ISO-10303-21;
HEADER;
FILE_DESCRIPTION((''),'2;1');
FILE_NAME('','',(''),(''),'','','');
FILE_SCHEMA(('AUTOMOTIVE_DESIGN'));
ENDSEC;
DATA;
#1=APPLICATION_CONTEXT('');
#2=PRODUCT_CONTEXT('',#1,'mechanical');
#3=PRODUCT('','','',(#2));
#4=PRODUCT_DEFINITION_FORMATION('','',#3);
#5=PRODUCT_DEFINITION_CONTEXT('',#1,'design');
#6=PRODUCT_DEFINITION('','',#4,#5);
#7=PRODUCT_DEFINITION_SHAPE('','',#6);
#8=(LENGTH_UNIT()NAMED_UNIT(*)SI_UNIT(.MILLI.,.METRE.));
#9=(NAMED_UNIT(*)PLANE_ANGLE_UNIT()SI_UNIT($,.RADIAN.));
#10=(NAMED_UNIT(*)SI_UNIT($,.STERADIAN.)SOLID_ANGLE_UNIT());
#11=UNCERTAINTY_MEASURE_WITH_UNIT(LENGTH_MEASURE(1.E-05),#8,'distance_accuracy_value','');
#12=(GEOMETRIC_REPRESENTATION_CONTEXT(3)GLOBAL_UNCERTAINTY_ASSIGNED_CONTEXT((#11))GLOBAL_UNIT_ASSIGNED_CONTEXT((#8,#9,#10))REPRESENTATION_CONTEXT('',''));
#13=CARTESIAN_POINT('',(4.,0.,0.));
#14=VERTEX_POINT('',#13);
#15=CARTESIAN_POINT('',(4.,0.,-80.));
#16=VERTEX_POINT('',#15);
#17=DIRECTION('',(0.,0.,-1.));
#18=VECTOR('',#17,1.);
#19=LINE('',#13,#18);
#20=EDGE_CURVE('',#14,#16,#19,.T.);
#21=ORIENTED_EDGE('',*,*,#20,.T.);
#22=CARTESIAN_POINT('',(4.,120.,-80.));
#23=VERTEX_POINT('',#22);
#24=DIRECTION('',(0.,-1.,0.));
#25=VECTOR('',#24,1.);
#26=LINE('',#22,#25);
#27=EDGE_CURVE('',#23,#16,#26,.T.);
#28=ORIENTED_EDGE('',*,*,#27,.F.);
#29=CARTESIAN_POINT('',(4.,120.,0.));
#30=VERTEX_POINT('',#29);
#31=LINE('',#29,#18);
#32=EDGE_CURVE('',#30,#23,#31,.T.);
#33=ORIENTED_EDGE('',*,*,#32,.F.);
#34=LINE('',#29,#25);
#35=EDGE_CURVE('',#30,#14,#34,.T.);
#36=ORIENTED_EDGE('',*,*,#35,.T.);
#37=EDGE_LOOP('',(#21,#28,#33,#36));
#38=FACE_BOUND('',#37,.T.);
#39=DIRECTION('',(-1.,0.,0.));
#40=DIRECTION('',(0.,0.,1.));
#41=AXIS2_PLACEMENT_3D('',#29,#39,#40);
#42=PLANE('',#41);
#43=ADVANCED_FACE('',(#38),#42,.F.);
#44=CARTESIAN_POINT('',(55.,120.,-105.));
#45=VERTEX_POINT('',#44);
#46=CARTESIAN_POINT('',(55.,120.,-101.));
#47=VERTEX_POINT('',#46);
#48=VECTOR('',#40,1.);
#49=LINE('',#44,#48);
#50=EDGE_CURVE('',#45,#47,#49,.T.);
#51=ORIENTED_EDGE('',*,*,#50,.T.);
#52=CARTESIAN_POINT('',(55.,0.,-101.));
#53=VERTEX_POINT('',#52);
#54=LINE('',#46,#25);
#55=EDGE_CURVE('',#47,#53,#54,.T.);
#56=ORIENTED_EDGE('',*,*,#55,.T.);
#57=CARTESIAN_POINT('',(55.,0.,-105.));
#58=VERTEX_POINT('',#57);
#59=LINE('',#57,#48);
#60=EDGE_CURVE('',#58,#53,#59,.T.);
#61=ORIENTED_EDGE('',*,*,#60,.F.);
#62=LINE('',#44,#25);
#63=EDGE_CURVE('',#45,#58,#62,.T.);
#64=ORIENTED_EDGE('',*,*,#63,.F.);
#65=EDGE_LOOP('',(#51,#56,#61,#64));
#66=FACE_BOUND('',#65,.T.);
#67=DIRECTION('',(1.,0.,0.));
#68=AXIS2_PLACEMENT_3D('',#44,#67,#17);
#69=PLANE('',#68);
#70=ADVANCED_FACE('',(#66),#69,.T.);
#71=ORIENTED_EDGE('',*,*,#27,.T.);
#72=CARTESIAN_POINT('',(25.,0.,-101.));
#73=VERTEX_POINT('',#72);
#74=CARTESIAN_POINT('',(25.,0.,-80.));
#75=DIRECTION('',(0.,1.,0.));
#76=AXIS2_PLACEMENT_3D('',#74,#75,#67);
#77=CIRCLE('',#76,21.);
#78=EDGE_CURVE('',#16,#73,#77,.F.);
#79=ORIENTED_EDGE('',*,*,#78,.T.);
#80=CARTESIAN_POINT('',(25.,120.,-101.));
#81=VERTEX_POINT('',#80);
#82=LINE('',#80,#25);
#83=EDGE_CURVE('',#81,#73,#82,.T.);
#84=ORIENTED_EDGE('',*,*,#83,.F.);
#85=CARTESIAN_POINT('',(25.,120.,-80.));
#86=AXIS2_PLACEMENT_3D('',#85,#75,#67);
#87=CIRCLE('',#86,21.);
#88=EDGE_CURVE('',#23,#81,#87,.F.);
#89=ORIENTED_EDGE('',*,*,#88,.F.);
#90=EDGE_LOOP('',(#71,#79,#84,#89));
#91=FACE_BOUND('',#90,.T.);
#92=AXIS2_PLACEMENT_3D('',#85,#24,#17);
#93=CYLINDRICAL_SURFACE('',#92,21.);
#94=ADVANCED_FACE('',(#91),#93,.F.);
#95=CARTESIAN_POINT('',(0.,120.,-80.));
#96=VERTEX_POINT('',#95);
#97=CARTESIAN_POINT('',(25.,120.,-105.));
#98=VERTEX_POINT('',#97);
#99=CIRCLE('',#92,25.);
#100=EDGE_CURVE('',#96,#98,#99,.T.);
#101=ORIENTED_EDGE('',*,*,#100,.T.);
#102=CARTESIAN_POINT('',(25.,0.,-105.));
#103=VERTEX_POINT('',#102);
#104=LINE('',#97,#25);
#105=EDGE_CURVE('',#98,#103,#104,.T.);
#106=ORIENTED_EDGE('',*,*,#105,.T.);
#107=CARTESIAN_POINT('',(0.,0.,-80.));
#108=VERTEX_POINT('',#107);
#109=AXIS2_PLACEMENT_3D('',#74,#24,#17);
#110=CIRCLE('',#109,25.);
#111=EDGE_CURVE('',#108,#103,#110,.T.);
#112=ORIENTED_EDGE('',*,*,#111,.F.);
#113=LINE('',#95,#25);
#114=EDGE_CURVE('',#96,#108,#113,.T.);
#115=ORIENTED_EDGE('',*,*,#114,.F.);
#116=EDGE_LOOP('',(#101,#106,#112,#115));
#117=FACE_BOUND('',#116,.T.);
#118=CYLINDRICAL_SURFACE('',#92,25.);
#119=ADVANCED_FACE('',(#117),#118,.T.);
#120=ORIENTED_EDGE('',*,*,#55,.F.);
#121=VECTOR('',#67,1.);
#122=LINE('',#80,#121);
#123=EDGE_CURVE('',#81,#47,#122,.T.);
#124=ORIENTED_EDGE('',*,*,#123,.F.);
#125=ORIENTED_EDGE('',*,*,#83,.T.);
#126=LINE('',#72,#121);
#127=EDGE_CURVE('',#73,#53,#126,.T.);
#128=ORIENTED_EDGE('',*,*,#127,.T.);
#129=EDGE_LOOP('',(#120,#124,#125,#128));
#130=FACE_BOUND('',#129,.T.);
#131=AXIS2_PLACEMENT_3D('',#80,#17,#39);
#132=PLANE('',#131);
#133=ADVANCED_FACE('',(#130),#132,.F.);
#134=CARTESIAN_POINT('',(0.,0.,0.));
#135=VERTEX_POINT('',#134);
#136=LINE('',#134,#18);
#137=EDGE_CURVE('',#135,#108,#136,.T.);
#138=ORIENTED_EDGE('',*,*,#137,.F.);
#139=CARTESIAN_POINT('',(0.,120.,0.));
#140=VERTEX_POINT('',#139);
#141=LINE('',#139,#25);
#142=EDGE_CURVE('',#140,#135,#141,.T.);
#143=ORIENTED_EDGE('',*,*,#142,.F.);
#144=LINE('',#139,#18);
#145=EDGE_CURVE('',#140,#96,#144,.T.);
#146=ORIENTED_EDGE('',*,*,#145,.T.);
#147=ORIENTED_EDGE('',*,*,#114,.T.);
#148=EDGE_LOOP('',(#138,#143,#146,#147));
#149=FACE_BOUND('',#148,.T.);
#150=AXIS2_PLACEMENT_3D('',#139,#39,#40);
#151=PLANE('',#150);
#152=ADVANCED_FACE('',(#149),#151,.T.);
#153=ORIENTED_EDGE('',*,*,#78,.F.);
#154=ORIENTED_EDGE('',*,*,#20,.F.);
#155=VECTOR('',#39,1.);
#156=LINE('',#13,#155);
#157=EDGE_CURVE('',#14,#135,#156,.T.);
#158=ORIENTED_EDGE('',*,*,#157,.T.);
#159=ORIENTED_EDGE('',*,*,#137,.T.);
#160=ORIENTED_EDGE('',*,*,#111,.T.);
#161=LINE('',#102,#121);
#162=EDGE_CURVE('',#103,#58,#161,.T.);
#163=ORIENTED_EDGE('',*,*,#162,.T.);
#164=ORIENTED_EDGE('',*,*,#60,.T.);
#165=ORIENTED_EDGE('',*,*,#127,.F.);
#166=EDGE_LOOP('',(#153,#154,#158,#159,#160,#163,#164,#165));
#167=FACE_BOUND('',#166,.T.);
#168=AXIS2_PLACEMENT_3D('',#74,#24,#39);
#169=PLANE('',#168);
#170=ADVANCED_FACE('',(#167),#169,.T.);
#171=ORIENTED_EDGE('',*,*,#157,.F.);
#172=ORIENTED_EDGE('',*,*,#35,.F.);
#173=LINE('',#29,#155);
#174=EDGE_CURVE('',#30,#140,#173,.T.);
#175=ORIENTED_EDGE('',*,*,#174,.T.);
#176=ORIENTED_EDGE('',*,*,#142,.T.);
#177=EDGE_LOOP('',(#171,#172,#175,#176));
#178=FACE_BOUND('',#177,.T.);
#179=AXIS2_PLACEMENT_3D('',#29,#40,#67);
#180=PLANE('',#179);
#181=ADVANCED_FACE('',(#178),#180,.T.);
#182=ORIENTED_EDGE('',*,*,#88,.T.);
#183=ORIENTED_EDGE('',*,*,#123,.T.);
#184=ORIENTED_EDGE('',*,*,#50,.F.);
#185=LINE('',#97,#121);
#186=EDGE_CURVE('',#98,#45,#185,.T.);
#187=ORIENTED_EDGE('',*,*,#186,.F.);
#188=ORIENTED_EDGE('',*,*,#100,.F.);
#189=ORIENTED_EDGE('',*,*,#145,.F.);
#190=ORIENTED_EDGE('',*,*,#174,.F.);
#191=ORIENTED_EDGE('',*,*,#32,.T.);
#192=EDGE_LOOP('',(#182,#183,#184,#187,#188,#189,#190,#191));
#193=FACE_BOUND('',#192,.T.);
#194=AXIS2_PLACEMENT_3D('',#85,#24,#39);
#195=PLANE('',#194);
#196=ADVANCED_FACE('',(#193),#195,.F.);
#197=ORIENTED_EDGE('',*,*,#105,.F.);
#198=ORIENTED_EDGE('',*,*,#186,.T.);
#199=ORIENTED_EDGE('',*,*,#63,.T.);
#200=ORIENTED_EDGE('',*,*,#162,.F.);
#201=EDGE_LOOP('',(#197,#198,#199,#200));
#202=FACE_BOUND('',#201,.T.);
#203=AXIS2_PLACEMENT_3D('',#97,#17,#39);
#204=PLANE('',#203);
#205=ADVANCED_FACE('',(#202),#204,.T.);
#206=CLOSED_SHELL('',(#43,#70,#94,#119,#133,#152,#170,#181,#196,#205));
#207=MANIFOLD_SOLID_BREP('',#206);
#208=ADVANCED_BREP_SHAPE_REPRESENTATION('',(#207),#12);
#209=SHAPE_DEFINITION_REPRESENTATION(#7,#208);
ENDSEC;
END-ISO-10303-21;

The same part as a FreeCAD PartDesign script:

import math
import FreeCAD as App
import Part
import Sketcher

doc = App.newDocument("Part")
params = doc.addObject("Spreadsheet::Sheet", "Params")
for row, (alias, value) in enumerate([
    ("sketch1_radius", "21 mm"),
    ("sketch1_radius2", "25 mm"),
    ("sketch1_width", "30 mm"),
    ("sketch1_height", "80 mm"),
    ("pad1_length", "120 mm"),
], start=1):
    params.set(f"A{row}", alias)
    params.set(f"B{row}", "=" + value)
    params.setAlias(f"B{row}", alias)

body = doc.addObject("PartDesign::Body", "Body")

sketch1 = body.newObject("Sketcher::SketchObject", "Sketch")
sketch1.AttachmentSupport = (doc.getObject("XZ_Plane"), [""])
sketch1.MapMode = "FlatFace"
sketch1.addGeometry(Part.LineSegment(App.Vector(0, -80, 0), App.Vector(0, 0, 0)), False)
sketch1.addGeometry(Part.LineSegment(App.Vector(0, 0, 0), App.Vector(4, 0, 0)), False)
sketch1.addGeometry(Part.LineSegment(App.Vector(4, 0, 0), App.Vector(4, -80, 0)), False)
sketch1.addGeometry(Part.ArcOfCircle(Part.Circle(App.Vector(25, -80, 0), App.Vector(0, 0, 1), 21), math.radians(180), math.radians(270)), False)
sketch1.addGeometry(Part.LineSegment(App.Vector(25, -101, 0), App.Vector(55, -101, 0)), False)
sketch1.addGeometry(Part.LineSegment(App.Vector(55, -101, 0), App.Vector(55, -105, 0)), False)
sketch1.addGeometry(Part.LineSegment(App.Vector(55, -105, 0), App.Vector(25, -105, 0)), False)
sketch1.addGeometry(Part.ArcOfCircle(Part.Circle(App.Vector(25, -80, 0), App.Vector(0, 0, 1), 25), math.radians(180), math.radians(270)), False)
sketch1.addConstraint(Sketcher.Constraint("Coincident", 0, 2, 1, 1))
sketch1.addConstraint(Sketcher.Constraint("Coincident", 1, 2, 2, 1))
sketch1.addConstraint(Sketcher.Constraint("Tangent", 2, 2, 3, 1))
sketch1.addConstraint(Sketcher.Constraint("Tangent", 3, 2, 4, 1))
sketch1.addConstraint(Sketcher.Constraint("Coincident", 4, 2, 5, 1))
sketch1.addConstraint(Sketcher.Constraint("Coincident", 5, 2, 6, 1))
sketch1.addConstraint(Sketcher.Constraint("Tangent", 6, 2, 7, 2))
sketch1.addConstraint(Sketcher.Constraint("Tangent", 7, 1, 0, 1))
sketch1.addConstraint(Sketcher.Constraint("Vertical", 0))
sketch1.addConstraint(Sketcher.Constraint("Horizontal", 1))
sketch1.addConstraint(Sketcher.Constraint("Vertical", 2))
sketch1.addConstraint(Sketcher.Constraint("Horizontal", 4))
sketch1.addConstraint(Sketcher.Constraint("Vertical", 5))
sketch1.addConstraint(Sketcher.Constraint("Horizontal", 6))
sketch1.addConstraint(Sketcher.Constraint("Coincident", 0, 2, -1, 1))
sketch1.addConstraint(Sketcher.Constraint("Coincident", 7, 3, 3, 3))
sketch1.addConstraint(Sketcher.Constraint("Radius", 3, 21.0))
sketch1.addConstraint(Sketcher.Constraint("Radius", 7, 25.0))
sketch1.addConstraint(Sketcher.Constraint("DistanceX", 4, 1, 4, 2, 30.0))
sketch1.addConstraint(Sketcher.Constraint("DistanceY", 0, 1, 0, 2, 80.0))
sketch1.setExpression("Constraints[16]", "Params.sketch1_radius")
sketch1.setExpression("Constraints[17]", "Params.sketch1_radius2")
sketch1.setExpression("Constraints[18]", "Params.sketch1_width")
sketch1.setExpression("Constraints[19]", "Params.sketch1_height")
pad1 = body.newObject("PartDesign::Pad", "Pad")
pad1.Profile = sketch1
pad1.setExpression("Length", "Params.pad1_length")
pad1.Reversed = True

doc.recompute()
